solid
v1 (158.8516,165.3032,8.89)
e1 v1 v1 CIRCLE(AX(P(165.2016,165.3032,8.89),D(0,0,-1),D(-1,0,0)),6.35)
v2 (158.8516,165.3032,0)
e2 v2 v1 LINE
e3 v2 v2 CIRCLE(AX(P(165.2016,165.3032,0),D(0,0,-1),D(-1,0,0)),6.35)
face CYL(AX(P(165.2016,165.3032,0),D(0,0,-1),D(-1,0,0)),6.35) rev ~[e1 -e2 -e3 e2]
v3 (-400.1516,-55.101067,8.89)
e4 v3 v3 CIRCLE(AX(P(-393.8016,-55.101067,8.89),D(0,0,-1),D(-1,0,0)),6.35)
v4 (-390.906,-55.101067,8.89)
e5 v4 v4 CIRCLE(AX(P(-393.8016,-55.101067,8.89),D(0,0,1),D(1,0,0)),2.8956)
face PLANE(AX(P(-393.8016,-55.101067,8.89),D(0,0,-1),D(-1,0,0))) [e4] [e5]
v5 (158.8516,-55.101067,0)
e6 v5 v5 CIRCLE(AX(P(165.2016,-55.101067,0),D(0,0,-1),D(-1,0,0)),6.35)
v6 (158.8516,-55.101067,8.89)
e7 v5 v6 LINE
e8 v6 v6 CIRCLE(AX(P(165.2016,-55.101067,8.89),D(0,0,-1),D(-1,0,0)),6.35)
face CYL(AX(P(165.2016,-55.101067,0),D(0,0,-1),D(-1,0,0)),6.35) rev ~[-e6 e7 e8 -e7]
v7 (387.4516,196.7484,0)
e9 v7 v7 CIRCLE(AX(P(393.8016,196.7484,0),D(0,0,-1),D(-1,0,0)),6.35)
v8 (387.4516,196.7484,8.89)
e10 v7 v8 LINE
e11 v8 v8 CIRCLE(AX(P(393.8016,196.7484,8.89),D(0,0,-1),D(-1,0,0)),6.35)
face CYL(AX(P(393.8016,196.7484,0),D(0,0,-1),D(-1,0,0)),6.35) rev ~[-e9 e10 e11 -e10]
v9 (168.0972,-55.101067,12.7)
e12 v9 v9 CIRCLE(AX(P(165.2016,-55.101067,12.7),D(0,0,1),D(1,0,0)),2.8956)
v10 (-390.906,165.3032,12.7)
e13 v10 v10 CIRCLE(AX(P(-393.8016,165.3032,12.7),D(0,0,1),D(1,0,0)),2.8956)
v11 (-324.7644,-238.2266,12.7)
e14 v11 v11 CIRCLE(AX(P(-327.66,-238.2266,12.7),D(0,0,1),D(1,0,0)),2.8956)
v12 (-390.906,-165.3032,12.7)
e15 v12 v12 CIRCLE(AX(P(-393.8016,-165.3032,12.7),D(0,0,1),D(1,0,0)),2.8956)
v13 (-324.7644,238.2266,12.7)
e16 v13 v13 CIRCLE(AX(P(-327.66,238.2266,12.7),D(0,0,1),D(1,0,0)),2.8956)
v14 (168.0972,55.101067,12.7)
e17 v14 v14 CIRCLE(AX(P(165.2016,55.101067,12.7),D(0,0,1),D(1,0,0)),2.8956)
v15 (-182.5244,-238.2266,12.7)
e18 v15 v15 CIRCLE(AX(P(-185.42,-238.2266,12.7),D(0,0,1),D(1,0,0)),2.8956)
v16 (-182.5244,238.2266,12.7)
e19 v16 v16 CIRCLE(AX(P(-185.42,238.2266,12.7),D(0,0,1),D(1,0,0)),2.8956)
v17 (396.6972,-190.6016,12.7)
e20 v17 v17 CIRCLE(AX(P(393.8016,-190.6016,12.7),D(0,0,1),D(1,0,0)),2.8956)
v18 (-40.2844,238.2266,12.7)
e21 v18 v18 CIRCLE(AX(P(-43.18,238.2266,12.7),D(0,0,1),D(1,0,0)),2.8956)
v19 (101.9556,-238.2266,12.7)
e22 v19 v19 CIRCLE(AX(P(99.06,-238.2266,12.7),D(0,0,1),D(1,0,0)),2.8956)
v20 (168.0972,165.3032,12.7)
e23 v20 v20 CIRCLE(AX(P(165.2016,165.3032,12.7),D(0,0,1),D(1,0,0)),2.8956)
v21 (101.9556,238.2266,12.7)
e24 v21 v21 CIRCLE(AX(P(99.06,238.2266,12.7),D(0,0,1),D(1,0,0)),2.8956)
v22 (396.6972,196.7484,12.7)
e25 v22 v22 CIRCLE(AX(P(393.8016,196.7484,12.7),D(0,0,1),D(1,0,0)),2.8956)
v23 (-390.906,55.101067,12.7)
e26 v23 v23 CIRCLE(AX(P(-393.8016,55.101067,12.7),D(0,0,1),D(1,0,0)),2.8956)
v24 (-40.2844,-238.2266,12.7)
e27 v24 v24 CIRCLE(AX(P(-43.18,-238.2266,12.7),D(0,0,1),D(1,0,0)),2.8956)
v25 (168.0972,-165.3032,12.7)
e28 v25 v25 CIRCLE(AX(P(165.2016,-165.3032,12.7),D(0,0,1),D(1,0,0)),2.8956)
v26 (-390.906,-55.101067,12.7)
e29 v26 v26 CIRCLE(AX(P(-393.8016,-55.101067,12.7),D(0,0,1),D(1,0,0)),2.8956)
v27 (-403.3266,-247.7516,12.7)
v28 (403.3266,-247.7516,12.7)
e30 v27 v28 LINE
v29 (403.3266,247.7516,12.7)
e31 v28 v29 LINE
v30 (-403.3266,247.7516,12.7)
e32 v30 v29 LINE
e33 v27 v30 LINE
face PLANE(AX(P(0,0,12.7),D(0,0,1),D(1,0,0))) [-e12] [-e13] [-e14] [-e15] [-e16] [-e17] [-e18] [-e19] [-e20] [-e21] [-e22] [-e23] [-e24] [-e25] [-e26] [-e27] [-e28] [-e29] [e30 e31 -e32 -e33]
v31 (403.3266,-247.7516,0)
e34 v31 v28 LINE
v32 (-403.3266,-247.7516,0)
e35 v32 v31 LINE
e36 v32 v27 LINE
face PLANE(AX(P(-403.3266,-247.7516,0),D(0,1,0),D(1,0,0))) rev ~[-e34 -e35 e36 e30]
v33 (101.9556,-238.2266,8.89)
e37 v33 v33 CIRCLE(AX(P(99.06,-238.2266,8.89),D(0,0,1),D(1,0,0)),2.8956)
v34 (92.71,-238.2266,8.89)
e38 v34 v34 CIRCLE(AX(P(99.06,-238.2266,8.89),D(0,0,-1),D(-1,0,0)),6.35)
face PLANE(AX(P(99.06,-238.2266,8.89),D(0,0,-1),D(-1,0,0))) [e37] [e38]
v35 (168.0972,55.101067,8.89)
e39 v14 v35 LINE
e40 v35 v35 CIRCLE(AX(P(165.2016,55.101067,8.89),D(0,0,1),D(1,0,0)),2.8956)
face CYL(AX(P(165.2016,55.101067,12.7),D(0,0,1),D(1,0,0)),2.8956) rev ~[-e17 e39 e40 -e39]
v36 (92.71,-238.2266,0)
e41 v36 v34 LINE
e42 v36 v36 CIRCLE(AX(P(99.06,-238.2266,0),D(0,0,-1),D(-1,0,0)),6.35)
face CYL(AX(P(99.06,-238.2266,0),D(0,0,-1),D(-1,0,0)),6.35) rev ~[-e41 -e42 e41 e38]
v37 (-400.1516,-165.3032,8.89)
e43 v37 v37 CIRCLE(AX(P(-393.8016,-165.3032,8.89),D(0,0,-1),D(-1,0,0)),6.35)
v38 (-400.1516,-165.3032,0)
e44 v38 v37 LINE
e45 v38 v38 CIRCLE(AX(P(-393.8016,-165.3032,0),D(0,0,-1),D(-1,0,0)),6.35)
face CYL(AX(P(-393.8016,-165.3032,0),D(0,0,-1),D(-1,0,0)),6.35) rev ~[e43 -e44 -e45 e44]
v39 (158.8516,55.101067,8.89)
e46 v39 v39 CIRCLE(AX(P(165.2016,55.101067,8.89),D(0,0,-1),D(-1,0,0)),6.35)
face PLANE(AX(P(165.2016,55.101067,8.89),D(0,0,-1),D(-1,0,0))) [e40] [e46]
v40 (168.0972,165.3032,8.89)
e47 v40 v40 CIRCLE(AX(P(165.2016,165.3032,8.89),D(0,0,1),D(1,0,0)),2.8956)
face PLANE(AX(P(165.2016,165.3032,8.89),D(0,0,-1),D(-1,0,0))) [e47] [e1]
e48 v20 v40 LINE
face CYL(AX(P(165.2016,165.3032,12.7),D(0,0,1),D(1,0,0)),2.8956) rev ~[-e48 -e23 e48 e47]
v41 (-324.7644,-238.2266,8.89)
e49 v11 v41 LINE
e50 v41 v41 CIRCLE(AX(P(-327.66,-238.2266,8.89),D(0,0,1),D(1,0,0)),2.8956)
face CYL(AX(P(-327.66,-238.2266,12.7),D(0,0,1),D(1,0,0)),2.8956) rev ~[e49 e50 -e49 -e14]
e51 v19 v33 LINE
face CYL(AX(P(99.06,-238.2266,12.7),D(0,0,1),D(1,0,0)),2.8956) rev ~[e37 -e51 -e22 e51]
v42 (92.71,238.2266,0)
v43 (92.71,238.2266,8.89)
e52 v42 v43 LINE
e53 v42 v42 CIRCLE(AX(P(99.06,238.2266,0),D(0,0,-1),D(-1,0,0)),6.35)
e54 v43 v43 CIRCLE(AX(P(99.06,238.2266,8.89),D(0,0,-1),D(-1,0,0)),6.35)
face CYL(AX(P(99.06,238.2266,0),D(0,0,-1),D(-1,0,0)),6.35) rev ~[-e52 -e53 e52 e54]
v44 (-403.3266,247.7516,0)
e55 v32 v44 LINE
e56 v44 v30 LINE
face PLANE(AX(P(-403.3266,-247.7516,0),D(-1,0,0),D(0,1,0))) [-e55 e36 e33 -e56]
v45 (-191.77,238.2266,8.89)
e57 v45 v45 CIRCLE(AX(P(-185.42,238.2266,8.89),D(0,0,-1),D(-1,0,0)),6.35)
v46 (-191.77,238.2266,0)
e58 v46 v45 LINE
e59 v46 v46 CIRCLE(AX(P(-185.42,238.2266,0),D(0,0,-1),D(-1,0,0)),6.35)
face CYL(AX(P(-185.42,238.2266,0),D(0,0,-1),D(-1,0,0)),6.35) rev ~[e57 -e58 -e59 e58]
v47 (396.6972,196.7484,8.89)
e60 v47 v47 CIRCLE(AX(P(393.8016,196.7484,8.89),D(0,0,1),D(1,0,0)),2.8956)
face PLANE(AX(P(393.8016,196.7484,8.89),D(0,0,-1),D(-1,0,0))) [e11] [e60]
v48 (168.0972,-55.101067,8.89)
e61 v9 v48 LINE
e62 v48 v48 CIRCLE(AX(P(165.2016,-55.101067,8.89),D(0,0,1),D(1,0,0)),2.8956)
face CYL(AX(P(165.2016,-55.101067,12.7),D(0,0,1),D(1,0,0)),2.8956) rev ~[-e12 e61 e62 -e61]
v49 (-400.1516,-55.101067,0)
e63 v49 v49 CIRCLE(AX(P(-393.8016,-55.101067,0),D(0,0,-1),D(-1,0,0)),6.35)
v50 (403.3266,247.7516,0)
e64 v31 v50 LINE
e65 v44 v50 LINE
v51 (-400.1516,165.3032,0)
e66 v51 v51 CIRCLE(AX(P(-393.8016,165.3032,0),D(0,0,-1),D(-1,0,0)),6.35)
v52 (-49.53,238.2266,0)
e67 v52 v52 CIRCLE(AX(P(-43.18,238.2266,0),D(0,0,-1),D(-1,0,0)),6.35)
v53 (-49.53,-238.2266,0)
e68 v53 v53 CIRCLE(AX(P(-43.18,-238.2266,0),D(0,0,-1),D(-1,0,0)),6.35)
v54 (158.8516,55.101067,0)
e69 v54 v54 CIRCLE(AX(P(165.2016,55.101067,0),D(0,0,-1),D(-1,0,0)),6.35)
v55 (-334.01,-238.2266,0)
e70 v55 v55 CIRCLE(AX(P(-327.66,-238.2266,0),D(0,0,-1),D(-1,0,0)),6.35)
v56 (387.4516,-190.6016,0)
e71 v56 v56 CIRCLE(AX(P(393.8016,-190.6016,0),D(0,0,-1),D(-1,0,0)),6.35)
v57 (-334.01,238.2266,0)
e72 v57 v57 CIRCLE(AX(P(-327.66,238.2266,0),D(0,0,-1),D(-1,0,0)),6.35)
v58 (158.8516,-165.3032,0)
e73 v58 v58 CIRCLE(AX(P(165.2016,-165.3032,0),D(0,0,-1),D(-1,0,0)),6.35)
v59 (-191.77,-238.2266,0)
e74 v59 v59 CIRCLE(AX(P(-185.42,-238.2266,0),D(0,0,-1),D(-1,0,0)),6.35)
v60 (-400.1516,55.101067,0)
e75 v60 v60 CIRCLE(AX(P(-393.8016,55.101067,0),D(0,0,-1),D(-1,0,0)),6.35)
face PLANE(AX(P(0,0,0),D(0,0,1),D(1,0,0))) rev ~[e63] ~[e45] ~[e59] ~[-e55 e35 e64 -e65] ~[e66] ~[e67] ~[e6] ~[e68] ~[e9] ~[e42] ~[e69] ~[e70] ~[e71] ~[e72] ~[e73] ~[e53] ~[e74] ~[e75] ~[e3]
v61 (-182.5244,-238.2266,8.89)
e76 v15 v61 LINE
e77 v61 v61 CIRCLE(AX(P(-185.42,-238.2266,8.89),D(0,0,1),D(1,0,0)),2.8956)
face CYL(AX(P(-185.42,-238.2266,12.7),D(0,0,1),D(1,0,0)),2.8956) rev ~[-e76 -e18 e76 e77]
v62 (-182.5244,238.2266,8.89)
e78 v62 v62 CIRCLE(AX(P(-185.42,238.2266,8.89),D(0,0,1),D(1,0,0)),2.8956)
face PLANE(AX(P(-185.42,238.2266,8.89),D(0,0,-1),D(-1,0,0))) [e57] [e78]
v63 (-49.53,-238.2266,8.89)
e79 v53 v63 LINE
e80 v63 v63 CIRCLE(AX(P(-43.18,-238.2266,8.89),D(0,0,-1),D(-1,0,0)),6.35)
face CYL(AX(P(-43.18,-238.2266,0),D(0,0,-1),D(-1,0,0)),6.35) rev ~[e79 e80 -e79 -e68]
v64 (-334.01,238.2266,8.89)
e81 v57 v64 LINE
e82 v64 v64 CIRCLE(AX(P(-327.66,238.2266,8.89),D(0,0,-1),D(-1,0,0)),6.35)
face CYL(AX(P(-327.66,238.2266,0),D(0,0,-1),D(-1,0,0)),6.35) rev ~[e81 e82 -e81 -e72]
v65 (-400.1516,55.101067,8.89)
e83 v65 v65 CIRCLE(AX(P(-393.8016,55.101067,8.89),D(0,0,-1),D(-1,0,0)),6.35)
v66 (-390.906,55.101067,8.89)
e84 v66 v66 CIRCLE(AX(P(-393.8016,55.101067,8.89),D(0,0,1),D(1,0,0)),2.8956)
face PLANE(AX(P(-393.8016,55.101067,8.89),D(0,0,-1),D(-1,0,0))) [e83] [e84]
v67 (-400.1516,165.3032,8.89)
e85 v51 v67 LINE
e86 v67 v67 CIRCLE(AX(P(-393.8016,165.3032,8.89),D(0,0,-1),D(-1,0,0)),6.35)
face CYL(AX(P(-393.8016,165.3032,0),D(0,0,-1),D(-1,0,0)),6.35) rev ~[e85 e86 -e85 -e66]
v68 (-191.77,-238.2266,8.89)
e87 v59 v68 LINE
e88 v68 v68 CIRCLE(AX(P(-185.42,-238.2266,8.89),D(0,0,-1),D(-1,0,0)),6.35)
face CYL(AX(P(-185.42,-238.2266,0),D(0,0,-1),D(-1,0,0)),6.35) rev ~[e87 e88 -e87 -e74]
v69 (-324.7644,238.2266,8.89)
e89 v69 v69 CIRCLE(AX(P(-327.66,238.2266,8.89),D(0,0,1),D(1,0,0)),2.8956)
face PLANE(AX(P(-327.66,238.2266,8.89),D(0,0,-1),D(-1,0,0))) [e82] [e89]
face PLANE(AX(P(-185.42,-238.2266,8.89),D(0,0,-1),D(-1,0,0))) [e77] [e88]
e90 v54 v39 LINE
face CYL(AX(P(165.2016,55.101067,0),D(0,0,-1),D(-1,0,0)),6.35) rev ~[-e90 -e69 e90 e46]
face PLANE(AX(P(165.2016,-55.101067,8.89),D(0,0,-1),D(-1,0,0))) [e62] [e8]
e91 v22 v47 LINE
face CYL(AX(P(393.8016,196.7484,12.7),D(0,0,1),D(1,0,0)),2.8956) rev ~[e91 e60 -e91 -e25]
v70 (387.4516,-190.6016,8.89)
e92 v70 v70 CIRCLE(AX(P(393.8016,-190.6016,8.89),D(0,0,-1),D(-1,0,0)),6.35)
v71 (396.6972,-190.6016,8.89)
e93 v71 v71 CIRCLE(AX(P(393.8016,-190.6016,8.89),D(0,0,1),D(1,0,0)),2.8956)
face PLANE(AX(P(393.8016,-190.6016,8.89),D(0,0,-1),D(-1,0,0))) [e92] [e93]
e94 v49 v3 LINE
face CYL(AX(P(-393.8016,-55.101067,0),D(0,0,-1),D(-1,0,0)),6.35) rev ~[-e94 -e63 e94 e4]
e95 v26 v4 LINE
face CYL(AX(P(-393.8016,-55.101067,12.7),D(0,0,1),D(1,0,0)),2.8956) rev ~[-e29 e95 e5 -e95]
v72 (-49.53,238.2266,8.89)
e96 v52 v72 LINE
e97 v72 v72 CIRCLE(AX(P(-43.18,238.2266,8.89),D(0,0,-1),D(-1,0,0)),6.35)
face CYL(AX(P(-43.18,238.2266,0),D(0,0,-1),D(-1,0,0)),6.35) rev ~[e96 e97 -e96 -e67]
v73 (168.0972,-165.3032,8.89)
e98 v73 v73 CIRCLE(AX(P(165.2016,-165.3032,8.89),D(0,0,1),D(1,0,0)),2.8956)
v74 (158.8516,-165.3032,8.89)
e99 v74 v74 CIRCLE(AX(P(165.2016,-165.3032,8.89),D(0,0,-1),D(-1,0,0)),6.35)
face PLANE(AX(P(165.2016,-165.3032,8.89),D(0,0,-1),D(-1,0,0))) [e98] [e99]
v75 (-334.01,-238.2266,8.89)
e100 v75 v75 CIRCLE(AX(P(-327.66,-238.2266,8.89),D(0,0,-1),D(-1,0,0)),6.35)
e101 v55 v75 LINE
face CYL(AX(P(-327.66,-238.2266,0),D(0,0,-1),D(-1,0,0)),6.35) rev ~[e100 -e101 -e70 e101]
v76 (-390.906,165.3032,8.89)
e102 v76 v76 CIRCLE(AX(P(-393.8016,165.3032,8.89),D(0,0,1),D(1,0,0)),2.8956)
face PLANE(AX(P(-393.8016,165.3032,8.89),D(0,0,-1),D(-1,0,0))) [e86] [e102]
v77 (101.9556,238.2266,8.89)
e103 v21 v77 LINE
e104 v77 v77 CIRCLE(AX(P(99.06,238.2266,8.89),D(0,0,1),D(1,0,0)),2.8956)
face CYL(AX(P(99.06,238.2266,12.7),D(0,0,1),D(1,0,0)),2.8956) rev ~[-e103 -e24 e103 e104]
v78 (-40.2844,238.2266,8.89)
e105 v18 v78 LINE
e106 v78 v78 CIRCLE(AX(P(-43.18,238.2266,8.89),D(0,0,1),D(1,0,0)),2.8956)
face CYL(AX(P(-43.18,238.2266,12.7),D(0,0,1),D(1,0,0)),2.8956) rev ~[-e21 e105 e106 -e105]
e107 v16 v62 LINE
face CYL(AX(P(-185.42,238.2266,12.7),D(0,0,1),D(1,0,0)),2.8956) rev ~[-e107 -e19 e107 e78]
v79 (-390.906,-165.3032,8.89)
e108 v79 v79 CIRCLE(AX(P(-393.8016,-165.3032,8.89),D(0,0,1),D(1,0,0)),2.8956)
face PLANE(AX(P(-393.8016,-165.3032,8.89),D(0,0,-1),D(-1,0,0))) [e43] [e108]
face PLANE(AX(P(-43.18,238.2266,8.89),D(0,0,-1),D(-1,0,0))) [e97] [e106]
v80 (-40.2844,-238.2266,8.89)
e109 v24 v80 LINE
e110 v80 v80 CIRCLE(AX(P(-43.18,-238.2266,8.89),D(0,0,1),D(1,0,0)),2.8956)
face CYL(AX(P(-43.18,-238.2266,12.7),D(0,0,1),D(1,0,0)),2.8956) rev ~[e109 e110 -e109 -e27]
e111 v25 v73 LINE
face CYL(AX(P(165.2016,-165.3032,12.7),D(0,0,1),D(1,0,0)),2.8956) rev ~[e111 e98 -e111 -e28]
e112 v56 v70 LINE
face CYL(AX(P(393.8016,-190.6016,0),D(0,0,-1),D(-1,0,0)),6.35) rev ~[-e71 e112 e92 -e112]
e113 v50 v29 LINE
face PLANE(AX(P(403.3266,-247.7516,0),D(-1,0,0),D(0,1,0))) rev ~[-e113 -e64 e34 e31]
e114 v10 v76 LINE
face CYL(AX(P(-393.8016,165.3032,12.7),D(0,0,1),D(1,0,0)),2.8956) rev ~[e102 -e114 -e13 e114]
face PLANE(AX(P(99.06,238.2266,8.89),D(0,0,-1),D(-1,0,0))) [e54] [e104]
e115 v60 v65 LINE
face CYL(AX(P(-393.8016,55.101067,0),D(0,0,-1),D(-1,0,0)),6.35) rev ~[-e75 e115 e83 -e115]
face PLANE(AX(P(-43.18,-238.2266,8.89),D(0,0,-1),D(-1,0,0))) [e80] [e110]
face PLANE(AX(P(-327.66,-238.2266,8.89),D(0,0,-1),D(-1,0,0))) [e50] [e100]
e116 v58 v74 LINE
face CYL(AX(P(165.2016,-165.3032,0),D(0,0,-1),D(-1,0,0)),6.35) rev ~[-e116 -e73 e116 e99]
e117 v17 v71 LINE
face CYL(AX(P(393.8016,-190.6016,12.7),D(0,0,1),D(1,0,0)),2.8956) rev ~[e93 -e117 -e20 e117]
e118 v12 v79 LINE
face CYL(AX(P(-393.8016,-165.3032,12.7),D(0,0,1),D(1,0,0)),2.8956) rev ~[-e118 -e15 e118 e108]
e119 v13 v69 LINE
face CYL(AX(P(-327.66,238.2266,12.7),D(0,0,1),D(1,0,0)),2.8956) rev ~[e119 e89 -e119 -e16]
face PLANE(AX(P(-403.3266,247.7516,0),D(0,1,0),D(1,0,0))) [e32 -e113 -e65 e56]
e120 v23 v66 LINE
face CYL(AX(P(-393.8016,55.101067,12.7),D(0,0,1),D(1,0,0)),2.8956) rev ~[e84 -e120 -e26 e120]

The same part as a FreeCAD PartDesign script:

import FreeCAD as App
import Part
import Sketcher
from FreeCAD import Vector
Q = App.Units.Quantity


def add_polygon(sketch, points):
    """Adds a closed chain of lines whose ends are joined by coincident constraints."""
    first, n = sketch.GeometryCount, len(points)
    for a, b in zip(points, points[1:] + points[:1]):
        sketch.addGeometry(Part.LineSegment(App.Vector(*a, 0), App.Vector(*b, 0)), False)
    for i in range(n):
        sketch.addConstraint(Sketcher.Constraint("Coincident", first + i, 2, first + (i + 1) % n, 1))

doc = App.newDocument("Part")
body = doc.addObject("PartDesign::Body", "Body")

# Sketch on XY plane
sketch1 = body.newObject("Sketcher::SketchObject", "Sketch")
sketch1.AttachmentSupport = (doc.getObject("XY_Plane"), [""])
sketch1.MapMode = "FlatFace"
add_polygon(sketch1, [(-403.3266, 247.7516), (-403.3266, -247.7516), (403.3266, -247.7516), (403.3266, 247.7516)])  # lines 0-3
sketch1.addConstraint(Sketcher.Constraint("Vertical", 0))
sketch1.addConstraint(Sketcher.Constraint("Horizontal", 1))
sketch1.addConstraint(Sketcher.Constraint("Vertical", 2))
sketch1.addConstraint(Sketcher.Constraint("Horizontal", 3))
sketch1.addConstraint(Sketcher.Constraint("Symmetric", 0, 2, 2, 2, -1, 1))
sketch1.addConstraint(Sketcher.Constraint("DistanceX", 1, 1, 1, 2, Q("31.758 in")))
sketch1.addConstraint(Sketcher.Constraint("DistanceY", 0, 2, 0, 1, Q("19.508 in")))
pad1 = body.newObject("PartDesign::Pad", "Pad")
pad1.Profile = sketch1
pad1.Length = Q("0.5 in")

# Sketch on XY plane
sketch2 = body.newObject("Sketcher::SketchObject", "Sketch001")
sketch2.AttachmentSupport = (doc.getObject("XY_Plane"), [""])
sketch2.MapMode = "FlatFace"
sketch2.AttachmentOffset = App.Placement(Vector(0, 0, 0.5 * 25.4), App.Rotation())
sketch2.addGeometry(Part.Circle(Vector(-393.8016, -165.3032, 0), Vector(0, 0, 1), 2.8956), False)
sketch2.addGeometry(Part.Circle(Vector(165.2016, -165.3032, 0), Vector(0, 0, 1), 2.8956), False)
sketch2.addConstraint(Sketcher.Constraint("Equal", 0, 1))
sketch2.addConstraint(Sketcher.Constraint("Horizontal", 0, 3, 1, 3))
sketch2.addConstraint(Sketcher.Constraint("Diameter", 0, Q("0.228 in")))
sketch2.addConstraint(Sketcher.Constraint("DistanceX", 0, 3, -1, 1, Q("15.504 in")))
sketch2.addConstraint(Sketcher.Constraint("DistanceY", 0, 3, -1, 1, Q("6.508 in")))
sketch2.addConstraint(Sketcher.Constraint("DistanceX", -1, 1, 1, 3, Q("6.504 in")))
pocket1 = body.newObject("PartDesign::Pocket", "Pocket")
pocket1.Profile = sketch2
pocket1.Type = "ThroughAll"

# Sketch on XY plane
sketch3 = body.newObject("Sketcher::SketchObject", "Sketch002")
sketch3.AttachmentSupport = (doc.getObject("XY_Plane"), [""])
sketch3.MapMode = "FlatFace"
sketch3.addGeometry(Part.Circle(Vector(165.2016, -165.3032, 0), Vector(0, 0, 1), 6.35), False)
sketch3.addGeometry(Part.Circle(Vector(-393.8016, -165.3032, 0), Vector(0, 0, 1), 6.35), False)
sketch3.addConstraint(Sketcher.Constraint("Equal", 0, 1))
sketch3.addConstraint(Sketcher.Constraint("Horizontal", 0, 3, 1, 3))
sketch3.addConstraint(Sketcher.Constraint("Diameter", 0, Q("0.5 in")))
sketch3.addConstraint(Sketcher.Constraint("DistanceX", -1, 1, 0, 3, Q("6.504 in")))
sketch3.addConstraint(Sketcher.Constraint("DistanceY", 0, 3, -1, 1, Q("6.508 in")))
sketch3.addConstraint(Sketcher.Constraint("DistanceX", 1, 3, -1, 1, Q("15.504 in")))
pocket2 = body.newObject("PartDesign::Pocket", "Pocket001")
pocket2.Profile = sketch3
pocket2.Length = Q("0.35 in")
pocket2.Reversed = True
doc.recompute()

linearpattern = body.newObject("PartDesign::LinearPattern", "LinearPattern")
linearpattern.Originals = [pocket1, pocket2]
linearpattern.Direction = (doc.getObject("Y_Axis"), [""])
linearpattern.Mode = "offset"
linearpattern.Offset = 110.202133
linearpattern.Occurrences = 4
body.Tip = linearpattern

# Sketch on XY plane
sketch4 = body.newObject("Sketcher::SketchObject", "Sketch003")
sketch4.AttachmentSupport = (doc.getObject("XY_Plane"), [""])
sketch4.MapMode = "FlatFace"
sketch4.AttachmentOffset = App.Placement(Vector(0, 0, 0.5 * 25.4), App.Rotation())
sketch4.addGeometry(Part.Circle(Vector(-327.66, -238.2266, 0), Vector(0, 0, 1), 2.8956), False)
sketch4.addGeometry(Part.Circle(Vector(-327.66, 238.2266, 0), Vector(0, 0, 1), 2.8956), False)
sketch4.addConstraint(Sketcher.Constraint("Equal", 0, 1))
sketch4.addConstraint(Sketcher.Constraint("Symmetric", 0, 3, 1, 3, -1))
sketch4.addConstraint(Sketcher.Constraint("Diameter", 0, Q("0.228 in")))
sketch4.addConstraint(Sketcher.Constraint("DistanceX", 0, 3, -1, 1, Q("12.9 in")))
sketch4.addConstraint(Sketcher.Constraint("DistanceY", 0, 3, -1, 1, Q("9.379 in")))
pocket3 = body.newObject("PartDesign::Pocket", "Pocket002")
pocket3.Profile = sketch4
pocket3.Type = "ThroughAll"

# Sketch on XY plane
sketch5 = body.newObject("Sketcher::SketchObject", "Sketch004")
sketch5.AttachmentSupport = (doc.getObject("XY_Plane"), [""])
sketch5.MapMode = "FlatFace"
sketch5.addGeometry(Part.Circle(Vector(-327.66, -238.2266, 0), Vector(0, 0, 1), 6.35), False)
sketch5.addGeometry(Part.Circle(Vector(-327.66, 238.2266, 0), Vector(0, 0, 1), 6.35), False)
sketch5.addConstraint(Sketcher.Constraint("Equal", 0, 1))
sketch5.addConstraint(Sketcher.Constraint("Symmetric", 0, 3, 1, 3, -1))
sketch5.addConstraint(Sketcher.Constraint("Diameter", 0, Q("0.5 in")))
sketch5.addConstraint(Sketcher.Constraint("DistanceX", 0, 3, -1, 1, Q("12.9 in")))
sketch5.addConstraint(Sketcher.Constraint("DistanceY", 0, 3, -1, 1, Q("9.379 in")))
pocket4 = body.newObject("PartDesign::Pocket", "Pocket003")
pocket4.Profile = sketch5
pocket4.Length = Q("0.35 in")
pocket4.Reversed = True
doc.recompute()

linearpattern2 = body.newObject("PartDesign::LinearPattern", "LinearPattern001")
linearpattern2.Originals = [pocket3, pocket4]
linearpattern2.Direction = (doc.getObject("X_Axis"), [""])
linearpattern2.Mode = "offset"
linearpattern2.Offset = Q("5.6 in")
linearpattern2.Occurrences = 4
body.Tip = linearpattern2

# Sketch on XY plane
sketch6 = body.newObject("Sketcher::SketchObject", "Sketch005")
sketch6.AttachmentSupport = (doc.getObject("XY_Plane"), [""])
sketch6.MapMode = "FlatFace"
sketch6.AttachmentOffset = App.Placement(Vector(0, 0, 0.5 * 25.4), App.Rotation())
sketch6.addGeometry(Part.Circle(Vector(393.8016, 196.7484, 0), Vector(0, 0, 1), 2.8956), False)
sketch6.addGeometry(Part.Circle(Vector(393.8016, -190.6016, 0), Vector(0, 0, 1), 2.8956), False)
sketch6.addConstraint(Sketcher.Constraint("Equal", 0, 1))
sketch6.addConstraint(Sketcher.Constraint("Vertical", 0, 3, 1, 3))
sketch6.addConstraint(Sketcher.Constraint("Diameter", 0, Q("0.228 in")))
sketch6.addConstraint(Sketcher.Constraint("DistanceY", 1, 3, 0, 3, Q("15.25 in")))
sketch6.addConstraint(Sketcher.Constraint("DistanceX", -1, 1, 0, 3, Q("15.504 in")))
sketch6.addConstraint(Sketcher.Constraint("DistanceY", -1, 1, 0, 3, Q("7.746 in")))
pocket5 = body.newObject("PartDesign::Pocket", "Pocket004")
pocket5.Profile = sketch6
pocket5.Type = "ThroughAll"

# Sketch on XY plane
sketch7 = body.newObject("Sketcher::SketchObject", "Sketch006")
sketch7.AttachmentSupport = (doc.getObject("XY_Plane"), [""])
sketch7.MapMode = "FlatFace"
sketch7.addGeometry(Part.Circle(Vector(393.8016, 196.7484, 0), Vector(0, 0, 1), 6.35), False)
sketch7.addGeometry(Part.Circle(Vector(393.8016, -190.6016, 0), Vector(0, 0, 1), 6.35), False)
sketch7.addConstraint(Sketcher.Constraint("Equal", 0, 1))
sketch7.addConstraint(Sketcher.Constraint("Vertical", 0, 3, 1, 3))
sketch7.addConstraint(Sketcher.Constraint("Diameter", 0, Q("0.5 in")))
sketch7.addConstraint(Sketcher.Constraint("DistanceY", 1, 3, 0, 3, Q("15.25 in")))
sketch7.addConstraint(Sketcher.Constraint("DistanceX", -1, 1, 0, 3, Q("15.504 in")))
sketch7.addConstraint(Sketcher.Constraint("DistanceY", -1, 1, 0, 3, Q("7.746 in")))
pocket6 = body.newObject("PartDesign::Pocket", "Pocket005")
pocket6.Profile = sketch7
pocket6.Length = Q("0.35 in")
pocket6.Reversed = True

doc.recompute()
